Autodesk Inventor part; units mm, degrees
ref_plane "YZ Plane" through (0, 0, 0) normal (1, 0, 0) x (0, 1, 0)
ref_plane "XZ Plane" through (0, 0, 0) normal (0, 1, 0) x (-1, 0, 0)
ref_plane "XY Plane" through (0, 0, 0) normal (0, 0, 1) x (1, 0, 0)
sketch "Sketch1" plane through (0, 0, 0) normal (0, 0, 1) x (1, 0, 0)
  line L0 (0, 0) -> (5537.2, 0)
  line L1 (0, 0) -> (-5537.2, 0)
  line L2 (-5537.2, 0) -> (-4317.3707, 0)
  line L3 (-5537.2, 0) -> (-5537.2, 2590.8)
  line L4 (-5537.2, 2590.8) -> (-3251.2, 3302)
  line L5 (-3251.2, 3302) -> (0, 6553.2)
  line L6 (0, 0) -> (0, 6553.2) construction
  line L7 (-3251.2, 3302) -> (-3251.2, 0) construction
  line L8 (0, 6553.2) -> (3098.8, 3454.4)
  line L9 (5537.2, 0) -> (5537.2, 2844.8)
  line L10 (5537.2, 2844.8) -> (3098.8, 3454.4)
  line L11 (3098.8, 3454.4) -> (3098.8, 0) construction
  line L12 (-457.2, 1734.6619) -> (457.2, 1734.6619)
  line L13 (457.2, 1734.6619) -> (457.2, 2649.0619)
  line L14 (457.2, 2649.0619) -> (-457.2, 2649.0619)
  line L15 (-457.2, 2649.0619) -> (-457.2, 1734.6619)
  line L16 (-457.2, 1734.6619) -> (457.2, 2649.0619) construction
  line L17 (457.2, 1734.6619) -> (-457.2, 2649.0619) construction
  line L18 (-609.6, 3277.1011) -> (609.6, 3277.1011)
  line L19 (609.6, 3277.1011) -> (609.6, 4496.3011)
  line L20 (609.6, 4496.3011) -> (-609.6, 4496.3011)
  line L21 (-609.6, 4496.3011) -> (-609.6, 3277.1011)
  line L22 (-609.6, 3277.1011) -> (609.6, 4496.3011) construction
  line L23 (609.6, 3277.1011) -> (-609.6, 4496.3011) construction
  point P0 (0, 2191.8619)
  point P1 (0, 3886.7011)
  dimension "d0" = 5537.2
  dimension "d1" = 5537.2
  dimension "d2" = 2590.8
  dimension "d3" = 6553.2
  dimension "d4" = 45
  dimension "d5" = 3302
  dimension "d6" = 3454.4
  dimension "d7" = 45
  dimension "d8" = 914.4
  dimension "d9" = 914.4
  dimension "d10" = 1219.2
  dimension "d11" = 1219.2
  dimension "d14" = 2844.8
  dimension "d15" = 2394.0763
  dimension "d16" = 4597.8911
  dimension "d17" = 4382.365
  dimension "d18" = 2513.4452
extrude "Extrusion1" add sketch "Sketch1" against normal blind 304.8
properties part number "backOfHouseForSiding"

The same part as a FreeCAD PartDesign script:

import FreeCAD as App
import Part
import Sketcher
Q = App.Units.Quantity


def add_polygon(sketch, points):
    """Adds a closed chain of lines whose ends are joined by coincident constraints."""
    first, n = sketch.GeometryCount, len(points)
    for a, b in zip(points, points[1:] + points[:1]):
        sketch.addGeometry(Part.LineSegment(App.Vector(*a, 0), App.Vector(*b, 0)), False)
    for i in range(n):
        sketch.addConstraint(Sketcher.Constraint("Coincident", first + i, 2, first + (i + 1) % n, 1))

doc = App.newDocument("Part")
body = doc.addObject("PartDesign::Body", "Body")

sketch1 = body.newObject("Sketcher::SketchObject", "Sketch")
sketch1.AttachmentSupport = (doc.getObject("XY_Plane"), [""])
sketch1.MapMode = "FlatFace"
add_polygon(sketch1, [(-5537, 0), (5537, 0), (5537, 2845), (3099, 3454), (0, 6553), (-3251, 3302), (-5537, 2591)])
add_polygon(sketch1, [(457, 1735), (-457, 1735), (-457, 2649), (457, 2649)])
add_polygon(sketch1, [(610, 3277), (-610, 3277), (-610, 4496), (610, 4496)])
sketch1.addConstraint(Sketcher.Constraint("Horizontal", 0))
sketch1.addConstraint(Sketcher.Constraint("Vertical", 1))
sketch1.addConstraint(Sketcher.Constraint("Vertical", 6))
sketch1.addConstraint(Sketcher.Constraint("Horizontal", 7))
sketch1.addConstraint(Sketcher.Constraint("Vertical", 8))
sketch1.addConstraint(Sketcher.Constraint("Horizontal", 9))
sketch1.addConstraint(Sketcher.Constraint("Vertical", 10))
sketch1.addConstraint(Sketcher.Constraint("Horizontal", 11))
sketch1.addConstraint(Sketcher.Constraint("Vertical", 12))
sketch1.addConstraint(Sketcher.Constraint("Horizontal", 13))
sketch1.addConstraint(Sketcher.Constraint("Vertical", 14))
sketch1.addConstraint(Sketcher.Constraint("Symmetric", 0, 2, 6, 2, -1, 1))
sketch1.addConstraint(Sketcher.Constraint("PointOnObject", 3, 2, -2))
sketch1.addConstraint(Sketcher.Constraint("Perpendicular", 3, 4))
sketch1.addConstraint(Sketcher.Constraint("Equal", 9, 8))
sketch1.addConstraint(Sketcher.Constraint("Equal", 13, 12))
sketch1.addConstraint(Sketcher.Constraint("DistanceX", 7, 2, 7, 1, Q("36 in")))
sketch1.addConstraint(Sketcher.Constraint("DistanceX", 11, 2, 11, 1, Q("48 in")))
sketch1.addConstraint(Sketcher.Constraint("DistanceY", 1, 1, 1, 2, Q("112 in")))
sketch1.addConstraint(Sketcher.Constraint("DistanceY", 6, 2, 6, 1, Q("102 in")))
sketch1.addConstraint(Sketcher.Constraint("DistanceX", -1, 1, 0, 2, Q("218 in")))
sketch1.addConstraint(Sketcher.Constraint("DistanceY", -1, 1, 2, 2, Q("136 in")))
sketch1.addConstraint(Sketcher.Constraint("DistanceY", -1, 1, 3, 2, Q("258 in")))
sketch1.addConstraint(Sketcher.Constraint("DistanceY", -1, 1, 4, 2, Q("130 in")))
sketch1.addConstraint(Sketcher.Constraint("DistanceX", -1, 1, 2, 2, Q("122 in")))
sketch1.addConstraint(Sketcher.Constraint("DistanceX", 7, 2, -1, 1, Q("18 in")))
sketch1.addConstraint(Sketcher.Constraint("DistanceX", 11, 2, -1, 1, Q("24 in")))
sketch1.addConstraint(Sketcher.Constraint("DistanceY", -1, 1, 7, 2, Q("1734.662 mm")))
sketch1.addConstraint(Sketcher.Constraint("DistanceY", -1, 1, 11, 2, Q("3277.101 mm")))
pad1 = body.newObject("PartDesign::Pad", "Pad")
pad1.Profile = sketch1
pad1.Length = Q("12 in")
pad1.Reversed = True

doc.recompute()
